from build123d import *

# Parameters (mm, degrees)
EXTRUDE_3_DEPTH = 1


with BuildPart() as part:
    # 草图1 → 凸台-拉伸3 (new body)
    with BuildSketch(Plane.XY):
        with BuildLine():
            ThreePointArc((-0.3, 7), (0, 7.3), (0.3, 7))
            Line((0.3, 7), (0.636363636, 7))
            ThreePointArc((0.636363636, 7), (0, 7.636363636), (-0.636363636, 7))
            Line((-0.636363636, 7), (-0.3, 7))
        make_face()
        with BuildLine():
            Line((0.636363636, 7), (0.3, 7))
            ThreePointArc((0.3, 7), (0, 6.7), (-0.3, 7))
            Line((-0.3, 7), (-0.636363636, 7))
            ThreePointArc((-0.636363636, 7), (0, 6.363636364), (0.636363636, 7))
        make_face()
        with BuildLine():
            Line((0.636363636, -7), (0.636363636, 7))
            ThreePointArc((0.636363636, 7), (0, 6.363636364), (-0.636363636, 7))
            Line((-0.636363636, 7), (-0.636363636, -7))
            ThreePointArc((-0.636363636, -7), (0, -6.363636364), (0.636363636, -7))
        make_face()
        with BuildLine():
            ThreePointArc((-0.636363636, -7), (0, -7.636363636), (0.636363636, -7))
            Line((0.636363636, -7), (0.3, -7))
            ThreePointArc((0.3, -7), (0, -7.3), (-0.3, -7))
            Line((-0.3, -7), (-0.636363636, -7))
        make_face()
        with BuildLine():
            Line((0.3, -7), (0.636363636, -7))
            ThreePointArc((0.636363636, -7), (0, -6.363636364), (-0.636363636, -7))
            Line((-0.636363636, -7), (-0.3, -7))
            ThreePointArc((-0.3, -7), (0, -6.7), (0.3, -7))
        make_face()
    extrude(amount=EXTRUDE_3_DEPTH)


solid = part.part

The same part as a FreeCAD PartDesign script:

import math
import FreeCAD as App
import Part
import Sketcher
Q = App.Units.Quantity

doc = App.newDocument("Part")
body = doc.addObject("PartDesign::Body", "Body")

sketch1 = doc.addObject("Sketcher::SketchObject", "Sketch")
body.addObject(sketch1)
sketch1.AttachmentSupport = (doc.XY_Plane, [""])
sketch1.MapMode = "FlatFace"
sketch1.addGeometry([
    Part.LineSegment(App.Vector(-0.64, 7, 0), App.Vector(-0.64, -7, 0)),
    Part.ArcOfCircle(Part.Circle(App.Vector(0, -7, 0), App.Vector(0, 0, 1), 0.64), math.radians(180), math.radians(360)),
    Part.LineSegment(App.Vector(0.64, -7, 0), App.Vector(0.64, 7, 0)),
    Part.ArcOfCircle(Part.Circle(App.Vector(0, 7, 0), App.Vector(0, 0, 1), 0.64), math.radians(0), math.radians(180)),
    Part.Circle(App.Vector(0, 7, 0), App.Vector(0, 0, 1), 0.3),
    Part.Circle(App.Vector(0, -7, 0), App.Vector(0, 0, 1), 0.3),
], False)
sketch1.addConstraint([
    Sketcher.Constraint("Tangent", 0, 2, 1, 1),
    Sketcher.Constraint("Tangent", 1, 2, 2, 1),
    Sketcher.Constraint("Tangent", 2, 2, 3, 1),
    Sketcher.Constraint("Tangent", 3, 2, 0, 1),
    Sketcher.Constraint("Vertical", 0),
    Sketcher.Constraint("Vertical", 2),
    Sketcher.Constraint("Coincident", 4, 3, 3, 3),
    Sketcher.Constraint("Coincident", 5, 3, 1, 3),
    Sketcher.Constraint("Equal", 4, 5),
    Sketcher.Constraint("Symmetric", 1, 3, 3, 3, -1, 1),
    Sketcher.Constraint("Diameter", 4, Q("0.6 mm")),
    Sketcher.Constraint("DistanceY", 0, 2, 0, 1, Q("14 mm")),
    Sketcher.Constraint("Radius", 1, Q("0.636364 mm")),
])
pad1 = doc.addObject("PartDesign::Pad", "Pad")
body.addObject(pad1)
pad1.Profile = sketch1
pad1.Length = 1

doc.recompute()
